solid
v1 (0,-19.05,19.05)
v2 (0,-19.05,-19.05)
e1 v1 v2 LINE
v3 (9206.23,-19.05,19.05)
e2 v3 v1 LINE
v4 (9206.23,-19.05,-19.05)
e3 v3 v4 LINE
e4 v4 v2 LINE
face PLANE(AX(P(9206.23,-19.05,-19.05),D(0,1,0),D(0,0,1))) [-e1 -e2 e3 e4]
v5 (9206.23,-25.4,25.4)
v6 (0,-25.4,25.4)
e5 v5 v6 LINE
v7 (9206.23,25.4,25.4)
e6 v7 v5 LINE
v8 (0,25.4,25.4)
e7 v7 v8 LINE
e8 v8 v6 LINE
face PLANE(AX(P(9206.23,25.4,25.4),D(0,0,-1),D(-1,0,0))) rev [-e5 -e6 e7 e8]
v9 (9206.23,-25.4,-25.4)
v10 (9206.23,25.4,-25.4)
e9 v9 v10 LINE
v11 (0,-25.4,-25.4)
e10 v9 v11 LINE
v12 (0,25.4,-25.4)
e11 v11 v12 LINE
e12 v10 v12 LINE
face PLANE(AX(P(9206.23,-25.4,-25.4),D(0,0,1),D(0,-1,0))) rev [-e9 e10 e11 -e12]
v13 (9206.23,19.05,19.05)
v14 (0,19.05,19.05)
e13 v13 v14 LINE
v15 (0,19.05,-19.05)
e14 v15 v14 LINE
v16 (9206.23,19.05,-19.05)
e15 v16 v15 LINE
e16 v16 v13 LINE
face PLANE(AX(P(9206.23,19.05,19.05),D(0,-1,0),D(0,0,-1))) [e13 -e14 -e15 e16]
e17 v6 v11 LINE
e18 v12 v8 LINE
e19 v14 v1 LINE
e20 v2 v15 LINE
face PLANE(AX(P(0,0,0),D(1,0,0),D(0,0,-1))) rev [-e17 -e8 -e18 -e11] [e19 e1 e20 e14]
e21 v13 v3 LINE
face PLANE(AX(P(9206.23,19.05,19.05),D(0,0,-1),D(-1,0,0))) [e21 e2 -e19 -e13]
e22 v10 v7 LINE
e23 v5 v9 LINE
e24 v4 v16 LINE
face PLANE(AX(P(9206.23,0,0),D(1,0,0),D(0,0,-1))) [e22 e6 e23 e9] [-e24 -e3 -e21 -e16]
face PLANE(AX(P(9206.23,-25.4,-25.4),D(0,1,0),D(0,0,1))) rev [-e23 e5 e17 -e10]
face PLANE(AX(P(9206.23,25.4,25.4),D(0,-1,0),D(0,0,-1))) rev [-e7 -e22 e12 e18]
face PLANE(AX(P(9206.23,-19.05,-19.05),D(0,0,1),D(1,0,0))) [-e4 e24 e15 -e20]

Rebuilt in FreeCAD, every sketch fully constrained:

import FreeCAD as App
import Part
import Sketcher

V = App.Vector
Q = App.Units.Quantity


def add_polygon(sketch, points):
    """Adds a closed chain of lines whose ends are joined by coincident constraints."""
    first, n = sketch.GeometryCount, len(points)
    for a, b in zip(points, points[1:] + points[:1]):
        sketch.addGeometry(Part.LineSegment(App.Vector(*a, 0), App.Vector(*b, 0)), False)
    for i in range(n):
        sketch.addConstraint(Sketcher.Constraint("Coincident", first + i, 2, first + (i + 1) % n, 1))

doc = App.newDocument("Part")
body = doc.addObject("PartDesign::Body", "Body")

sketch1 = body.newObject("Sketcher::SketchObject", "Sketch")
sketch1.AttachmentSupport = (doc.getObject("YZ_Plane"), [""])
sketch1.MapMode = "FlatFace"
add_polygon(sketch1, [(-25.4, 25.4), (-25.4, -25.4), (25.4, -25.4), (25.4, 25.4)])
add_polygon(sketch1, [(19.05, -19.05), (-19.05, -19.05), (-19.05, 19.05), (19.05, 19.05)])
sketch1.addConstraint(Sketcher.Constraint("Vertical", 0))
sketch1.addConstraint(Sketcher.Constraint("Horizontal", 1))
sketch1.addConstraint(Sketcher.Constraint("Vertical", 2))
sketch1.addConstraint(Sketcher.Constraint("Horizontal", 3))
sketch1.addConstraint(Sketcher.Constraint("Horizontal", 4))
sketch1.addConstraint(Sketcher.Constraint("Vertical", 5))
sketch1.addConstraint(Sketcher.Constraint("Horizontal", 6))
sketch1.addConstraint(Sketcher.Constraint("Vertical", 7))
sketch1.addConstraint(Sketcher.Constraint("Symmetric", 0, 2, 2, 2, -1, 1))
sketch1.addConstraint(Sketcher.Constraint("Symmetric", 4, 2, 6, 2, -1, 1))
sketch1.addConstraint(Sketcher.Constraint("Equal", 3, 0))
sketch1.addConstraint(Sketcher.Constraint("Equal", 6, 5))
sketch1.addConstraint(Sketcher.Constraint("DistanceX", 1, 1, 1, 2, Q("2 in")))
sketch1.addConstraint(Sketcher.Constraint("DistanceX", 4, 2, 4, 1, Q("1.5 in")))
pad1 = body.newObject("PartDesign::Pad", "Pad")
pad1.Profile = sketch1
pad1.Length = Q("362.45 in")

doc.recompute()
